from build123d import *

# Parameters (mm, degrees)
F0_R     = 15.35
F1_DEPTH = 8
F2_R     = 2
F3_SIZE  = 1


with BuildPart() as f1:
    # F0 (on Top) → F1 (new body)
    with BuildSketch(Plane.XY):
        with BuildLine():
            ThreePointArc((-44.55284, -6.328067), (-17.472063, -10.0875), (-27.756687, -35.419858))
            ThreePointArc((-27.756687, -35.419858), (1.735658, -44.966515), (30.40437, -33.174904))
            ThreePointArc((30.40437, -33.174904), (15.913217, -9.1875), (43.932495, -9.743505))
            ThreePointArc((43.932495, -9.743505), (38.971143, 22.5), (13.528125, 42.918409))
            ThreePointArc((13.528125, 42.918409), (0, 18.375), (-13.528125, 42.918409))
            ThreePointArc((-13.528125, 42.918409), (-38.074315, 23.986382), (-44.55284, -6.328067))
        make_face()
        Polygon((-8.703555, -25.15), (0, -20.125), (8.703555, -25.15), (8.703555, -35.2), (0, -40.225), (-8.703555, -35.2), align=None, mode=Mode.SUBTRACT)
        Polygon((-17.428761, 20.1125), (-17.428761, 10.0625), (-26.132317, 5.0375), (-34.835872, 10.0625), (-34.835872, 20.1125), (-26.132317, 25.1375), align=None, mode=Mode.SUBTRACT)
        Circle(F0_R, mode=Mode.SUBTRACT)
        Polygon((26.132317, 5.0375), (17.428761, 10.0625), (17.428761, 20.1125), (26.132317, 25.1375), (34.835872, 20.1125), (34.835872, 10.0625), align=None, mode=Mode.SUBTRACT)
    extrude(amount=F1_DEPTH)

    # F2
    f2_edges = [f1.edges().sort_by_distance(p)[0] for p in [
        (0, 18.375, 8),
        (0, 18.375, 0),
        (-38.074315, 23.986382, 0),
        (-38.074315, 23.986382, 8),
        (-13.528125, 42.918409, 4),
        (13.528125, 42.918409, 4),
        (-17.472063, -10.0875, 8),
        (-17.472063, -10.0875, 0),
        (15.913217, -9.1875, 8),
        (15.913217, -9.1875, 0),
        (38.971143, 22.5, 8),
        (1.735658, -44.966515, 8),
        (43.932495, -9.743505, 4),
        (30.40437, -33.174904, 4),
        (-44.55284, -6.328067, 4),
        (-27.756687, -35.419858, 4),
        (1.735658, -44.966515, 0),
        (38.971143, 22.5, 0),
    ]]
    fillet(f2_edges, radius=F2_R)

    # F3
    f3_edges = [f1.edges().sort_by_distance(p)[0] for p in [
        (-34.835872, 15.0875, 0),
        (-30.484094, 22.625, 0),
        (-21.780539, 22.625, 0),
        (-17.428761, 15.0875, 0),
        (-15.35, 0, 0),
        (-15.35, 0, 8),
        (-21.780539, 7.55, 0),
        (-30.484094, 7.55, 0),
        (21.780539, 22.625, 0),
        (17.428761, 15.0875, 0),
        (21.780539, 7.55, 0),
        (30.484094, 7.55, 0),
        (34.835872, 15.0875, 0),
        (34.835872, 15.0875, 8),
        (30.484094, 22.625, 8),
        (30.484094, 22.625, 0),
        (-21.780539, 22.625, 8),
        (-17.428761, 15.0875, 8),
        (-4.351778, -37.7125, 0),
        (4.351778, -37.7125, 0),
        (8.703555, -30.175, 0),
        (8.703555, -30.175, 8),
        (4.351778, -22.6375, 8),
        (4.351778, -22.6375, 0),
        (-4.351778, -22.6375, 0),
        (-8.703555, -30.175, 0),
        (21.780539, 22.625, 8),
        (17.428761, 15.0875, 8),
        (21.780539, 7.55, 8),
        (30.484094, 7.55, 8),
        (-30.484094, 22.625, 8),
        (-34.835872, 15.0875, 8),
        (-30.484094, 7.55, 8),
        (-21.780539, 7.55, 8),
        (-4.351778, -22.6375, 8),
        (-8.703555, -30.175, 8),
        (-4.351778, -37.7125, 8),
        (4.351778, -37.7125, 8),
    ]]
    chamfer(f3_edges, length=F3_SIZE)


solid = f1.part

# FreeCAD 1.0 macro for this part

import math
import FreeCAD as App
import Part
import Sketcher

V = App.Vector
Q = App.Units.Quantity


def edges_at(feature, points):
    """Names of the edges that pass closest to the given points."""
    edges = feature.Shape.Edges
    near = lambda p: min(range(len(edges)), key=lambda i: edges[i].distToShape(Part.Vertex(*p))[0])
    return sorted({f"Edge{near(p) + 1}" for p in points})

doc = App.newDocument("Part")
params = doc.addObject("Spreadsheet::Sheet", "Params")
for row, (alias, value) in enumerate([
    ("sketch1_radius", "45 mm"),
    ("sketch1_radius2", "16 mm"),
    ("sketch1_diameter", "30.7 mm"),
    ("sketch1_height", "10.05 mm"),
    ("pad1_length", "8 mm"),
    ("fillet_radius", "2 mm"),
    ("chamfer_size", "1 mm"),
], start=1):
    params.set(f"A{row}", alias)
    params.set(f"B{row}", "=" + value)
    params.setAlias(f"B{row}", alias)

body = doc.addObject("PartDesign::Body", "Body")

# Sketch on XY plane
sketch1 = doc.addObject("Sketcher::SketchObject", "Sketch")
body.addObject(sketch1)
sketch1.AttachmentSupport = (doc.XY_Plane, [""])
sketch1.MapMode = "FlatFace"
sketch1.addGeometry([
    Part.ArcOfCircle(Part.Circle(V(-32.475953, -18.75, 0), V(0, 0, 1), 17.325), math.radians(-74.193089), math.radians(134.193088)),  # 0
    Part.ArcOfCircle(Part.Circle(V(0, 0.000001, 0), V(0, 0, 1), 45), math.radians(-128.083939), math.radians(-47.495146)),  # 1
    Part.ArcOfCircle(Part.Circle(V(29.769623, -17.1875, 0), V(0, 0, 1), 16), math.radians(27.726382), math.radians(272.273616)),  # 2
    Part.ArcOfCircle(Part.Circle(V(-0.000001, 0, 0), V(0, 0, 1), 45), math.radians(-12.504854), math.radians(72.504854)),  # 3
    Part.ArcOfCircle(Part.Circle(V(0, 34.375, 0), V(0, 0, 1), 16), math.radians(147.726384), math.radians(392.273616)),  # 4
    Part.ArcOfCircle(Part.Circle(V(0, 0, 0), V(0, 0, 1), 45), math.radians(107.495146), math.radians(188.083939)),  # 5
    Part.LineSegment(V(-8.703555, -35.2, 0), V(-8.703555, -25.15, 0)),  # 6
    Part.LineSegment(V(-8.703555, -25.15, 0), V(0, -20.125, 0)),  # 7
    Part.LineSegment(V(0, -20.125, 0), V(8.703555, -25.15, 0)),  # 8
    Part.LineSegment(V(8.703555, -25.15, 0), V(8.703555, -35.2, 0)),  # 9
    Part.LineSegment(V(8.703555, -35.2, 0), V(0, -40.225, 0)),  # 10
    Part.LineSegment(V(0, -40.225, 0), V(-8.703555, -35.2, 0)),  # 11
    Part.LineSegment(V(-26.132317, 25.1375, 0), V(-17.428761, 20.1125, 0)),  # 12
    Part.LineSegment(V(-17.428761, 20.1125, 0), V(-17.428761, 10.0625, 0)),  # 13
    Part.LineSegment(V(-17.428761, 10.0625, 0), V(-26.132317, 5.0375, 0)),  # 14
    Part.LineSegment(V(-26.132317, 5.0375, 0), V(-34.835872, 10.0625, 0)),  # 15
    Part.LineSegment(V(-34.835872, 10.0625, 0), V(-34.835872, 20.1125, 0)),  # 16
    Part.LineSegment(V(-34.835872, 20.1125, 0), V(-26.132317, 25.1375, 0)),  # 17
    Part.Circle(V(0, 0, 0), V(0, 0, 1), 15.35),  # 18
    Part.LineSegment(V(34.835872, 10.0625, 0), V(26.132317, 5.0375, 0)),  # 19
    Part.LineSegment(V(26.132317, 5.0375, 0), V(17.428761, 10.0625, 0)),  # 20
    Part.LineSegment(V(17.428761, 10.0625, 0), V(17.428761, 20.1125, 0)),  # 21
    Part.LineSegment(V(17.428761, 20.1125, 0), V(26.132317, 25.1375, 0)),  # 22
    Part.LineSegment(V(26.132317, 25.1375, 0), V(34.835872, 20.1125, 0)),  # 23
    Part.LineSegment(V(34.835872, 20.1125, 0), V(34.835872, 10.0625, 0)),  # 24
], False)
sketch1.addConstraint([
    Sketcher.Constraint("Coincident", 0, 1, 1, 1),
    Sketcher.Constraint("Coincident", 1, 2, 2, 2),
    Sketcher.Constraint("Coincident", 2, 1, 3, 1),
    Sketcher.Constraint("Coincident", 3, 2, 4, 2),
    Sketcher.Constraint("Coincident", 4, 1, 5, 1),
    Sketcher.Constraint("Coincident", 5, 2, 0, 2),
    Sketcher.Constraint("Coincident", 6, 2, 7, 1),
    Sketcher.Constraint("Coincident", 7, 2, 8, 1),
    Sketcher.Constraint("Coincident", 8, 2, 9, 1),
    Sketcher.Constraint("Coincident", 9, 2, 10, 1),
    Sketcher.Constraint("Coincident", 10, 2, 11, 1),
    Sketcher.Constraint("Coincident", 11, 2, 6, 1),
    Sketcher.Constraint("Coincident", 12, 2, 13, 1),
    Sketcher.Constraint("Coincident", 13, 2, 14, 1),
    Sketcher.Constraint("Coincident", 14, 2, 15, 1),
    Sketcher.Constraint("Coincident", 15, 2, 16, 1),
    Sketcher.Constraint("Coincident", 16, 2, 17, 1),
    Sketcher.Constraint("Coincident", 17, 2, 12, 1),
    Sketcher.Constraint("Coincident", 19, 2, 20, 1),
    Sketcher.Constraint("Coincident", 20, 2, 21, 1),
    Sketcher.Constraint("Coincident", 21, 2, 22, 1),
    Sketcher.Constraint("Coincident", 22, 2, 23, 1),
    Sketcher.Constraint("Coincident", 23, 2, 24, 1),
    Sketcher.Constraint("Coincident", 24, 2, 19, 1),
    Sketcher.Constraint("Vertical", 6),
    Sketcher.Constraint("Vertical", 9),
    Sketcher.Constraint("Vertical", 13),
    Sketcher.Constraint("Vertical", 16),
    Sketcher.Constraint("Vertical", 21),
    Sketcher.Constraint("Vertical", 24),
    Sketcher.Constraint("Coincident", 1, 3, -1, 1),
    Sketcher.Constraint("Coincident", 3, 3, -1, 1),
    Sketcher.Constraint("Coincident", 5, 3, -1, 1),
    Sketcher.Constraint("Coincident", 18, 3, -1, 1),
    Sketcher.Constraint("Equal", 1, 3),
    Sketcher.Constraint("Equal", 2, 4),
    Sketcher.Constraint("Equal", 3, 5),
    Sketcher.Constraint("Symmetric", 6, 2, 8, 2, -2),
    Sketcher.Constraint("Symmetric", 14, 2, 19, 2, -2),
    Sketcher.Constraint("Symmetric", 13, 2, 20, 2, -2),
    Sketcher.Constraint("Symmetric", 17, 2, 22, 2, -2),
    Sketcher.Constraint("Symmetric", 16, 2, 23, 2, -2),
    Sketcher.Constraint("PointOnObject", 4, 3, -2),
    Sketcher.Constraint("PointOnObject", 7, 2, -2),
    Sketcher.Constraint("PointOnObject", 10, 2, -2),
    Sketcher.Constraint("Parallel", 7, 10),
    Sketcher.Constraint("Parallel", 8, 11),
    Sketcher.Constraint("Parallel", 11, 12),
    Sketcher.Constraint("Parallel", 10, 14),
    Sketcher.Constraint("Parallel", 12, 15),
    Sketcher.Constraint("Parallel", 14, 17),
    Sketcher.Constraint("Parallel", 17, 19),
    Sketcher.Constraint("Parallel", 19, 22),
    Sketcher.Constraint("Horizontal", 13, 2, 15, 2),
    Sketcher.Constraint("Horizontal", 12, 2, 16, 2),
    Sketcher.Constraint("Equal", 9, 13),
    Sketcher.Constraint("Equal", 11, 12),
    Sketcher.Constraint("Radius", 1, 45.0),
    Sketcher.Constraint("Radius", 2, 16.0),
    Sketcher.Constraint("Diameter", 18, 30.7),
    Sketcher.Constraint("Angle", 7, Q("30.000001 deg")),
    Sketcher.Constraint("Radius", 0, 17.325),
    Sketcher.Constraint("DistanceY", 6, 1, 6, 2, 10.05),
    Sketcher.Constraint("DistanceY", 9, 2, -1, 1, 35.2),
    Sketcher.Constraint("DistanceY", 6, 2, 0, 3, 6.4),
    Sketcher.Constraint("DistanceY", 10, 2, 7, 2, 20.1),
    Sketcher.Constraint("DistanceY", -1, 1, 4, 3, 34.375),
    Sketcher.Constraint("DistanceY", 2, 3, 19, 2, 22.225),
    Sketcher.Constraint("DistanceY", 2, 3, -1, 1, 17.1875),
    Sketcher.Constraint("DistanceY", 1, 2, 2, 1, 23.431399),
    Sketcher.Constraint("DistanceX", 0, 3, 6, 2, 23.772398),
    Sketcher.Constraint("DistanceX", 12, 2, -1, 1, 17.428761),
])
sketch1.setExpression("Constraints[57]", "Params.sketch1_radius")
sketch1.setExpression("Constraints[58]", "Params.sketch1_radius2")
sketch1.setExpression("Constraints[59]", "Params.sketch1_diameter")
sketch1.setExpression("Constraints[62]", "Params.sketch1_height")
pad1 = doc.addObject("PartDesign::Pad", "Pad")
body.addObject(pad1)
pad1.Profile = sketch1
pad1.setExpression("Length", "Params.pad1_length")
doc.recompute()

fillet = doc.addObject("PartDesign::Fillet", "Fillet")
body.addObject(fillet)
fillet.Base = (pad1, edges_at(pad1, [
    (0, 18.375, 8),
    (0, 18.375, 0),
    (-38.074, 23.986, 0),
    (-38.074, 23.986, 8),
    (-13.528, 42.918, 4),
    (13.528, 42.918, 4),
    (-17.472, -10.088, 8),
    (-17.472, -10.088, 0),
    (15.913, -9.187, 8),
    (15.913, -9.187, 0),
    (38.971, 22.5, 8),
    (1.736, -44.967, 8),
    (43.932, -9.744, 4),
    (30.404, -33.175, 4),
    (-44.553, -6.328, 4),
    (-27.757, -35.42, 4),
    (1.736, -44.967, 0),
    (38.971, 22.5, 0),
]))
fillet.setExpression("Radius", "Params.fillet_radius")
doc.recompute()

chamfer = doc.addObject("PartDesign::Chamfer", "Chamfer")
body.addObject(chamfer)
chamfer.Base = (fillet, edges_at(fillet, [
    (-34.836, 15.088, 0),
    (-30.484, 22.625, 0),
    (-21.781, 22.625, 0),
    (-17.429, 15.088, 0),
    (-15.35, 0, 0),
    (-15.35, 0, 8),
    (-21.781, 7.55, 0),
    (-30.484, 7.55, 0),
    (21.781, 22.625, 0),
    (17.429, 15.088, 0),
    (21.781, 7.55, 0),
    (30.484, 7.55, 0),
    (34.836, 15.088, 0),
    (34.836, 15.088, 8),
    (30.484, 22.625, 8),
    (30.484, 22.625, 0),
    (-21.781, 22.625, 8),
    (-17.429, 15.088, 8),
    (-4.352, -37.712, 0),
    (4.352, -37.712, 0),
    (8.704, -30.175, 0),
    (8.704, -30.175, 8),
    (4.352, -22.637, 8),
    (4.352, -22.637, 0),
    (-4.352, -22.637, 0),
    (-8.704, -30.175, 0),
    (21.781, 22.625, 8),
    (17.429, 15.088, 8),
    (21.781, 7.55, 8),
    (30.484, 7.55, 8),
    (-30.484, 22.625, 8),
    (-34.836, 15.088, 8),
    (-30.484, 7.55, 8),
    (-21.781, 7.55, 8),
    (-4.352, -22.637, 8),
    (-8.704, -30.175, 8),
    (-4.352, -37.712, 8),
    (4.352, -37.712, 8),
]))
chamfer.setExpression("Size", "Params.chamfer_size")

doc.recompute()
